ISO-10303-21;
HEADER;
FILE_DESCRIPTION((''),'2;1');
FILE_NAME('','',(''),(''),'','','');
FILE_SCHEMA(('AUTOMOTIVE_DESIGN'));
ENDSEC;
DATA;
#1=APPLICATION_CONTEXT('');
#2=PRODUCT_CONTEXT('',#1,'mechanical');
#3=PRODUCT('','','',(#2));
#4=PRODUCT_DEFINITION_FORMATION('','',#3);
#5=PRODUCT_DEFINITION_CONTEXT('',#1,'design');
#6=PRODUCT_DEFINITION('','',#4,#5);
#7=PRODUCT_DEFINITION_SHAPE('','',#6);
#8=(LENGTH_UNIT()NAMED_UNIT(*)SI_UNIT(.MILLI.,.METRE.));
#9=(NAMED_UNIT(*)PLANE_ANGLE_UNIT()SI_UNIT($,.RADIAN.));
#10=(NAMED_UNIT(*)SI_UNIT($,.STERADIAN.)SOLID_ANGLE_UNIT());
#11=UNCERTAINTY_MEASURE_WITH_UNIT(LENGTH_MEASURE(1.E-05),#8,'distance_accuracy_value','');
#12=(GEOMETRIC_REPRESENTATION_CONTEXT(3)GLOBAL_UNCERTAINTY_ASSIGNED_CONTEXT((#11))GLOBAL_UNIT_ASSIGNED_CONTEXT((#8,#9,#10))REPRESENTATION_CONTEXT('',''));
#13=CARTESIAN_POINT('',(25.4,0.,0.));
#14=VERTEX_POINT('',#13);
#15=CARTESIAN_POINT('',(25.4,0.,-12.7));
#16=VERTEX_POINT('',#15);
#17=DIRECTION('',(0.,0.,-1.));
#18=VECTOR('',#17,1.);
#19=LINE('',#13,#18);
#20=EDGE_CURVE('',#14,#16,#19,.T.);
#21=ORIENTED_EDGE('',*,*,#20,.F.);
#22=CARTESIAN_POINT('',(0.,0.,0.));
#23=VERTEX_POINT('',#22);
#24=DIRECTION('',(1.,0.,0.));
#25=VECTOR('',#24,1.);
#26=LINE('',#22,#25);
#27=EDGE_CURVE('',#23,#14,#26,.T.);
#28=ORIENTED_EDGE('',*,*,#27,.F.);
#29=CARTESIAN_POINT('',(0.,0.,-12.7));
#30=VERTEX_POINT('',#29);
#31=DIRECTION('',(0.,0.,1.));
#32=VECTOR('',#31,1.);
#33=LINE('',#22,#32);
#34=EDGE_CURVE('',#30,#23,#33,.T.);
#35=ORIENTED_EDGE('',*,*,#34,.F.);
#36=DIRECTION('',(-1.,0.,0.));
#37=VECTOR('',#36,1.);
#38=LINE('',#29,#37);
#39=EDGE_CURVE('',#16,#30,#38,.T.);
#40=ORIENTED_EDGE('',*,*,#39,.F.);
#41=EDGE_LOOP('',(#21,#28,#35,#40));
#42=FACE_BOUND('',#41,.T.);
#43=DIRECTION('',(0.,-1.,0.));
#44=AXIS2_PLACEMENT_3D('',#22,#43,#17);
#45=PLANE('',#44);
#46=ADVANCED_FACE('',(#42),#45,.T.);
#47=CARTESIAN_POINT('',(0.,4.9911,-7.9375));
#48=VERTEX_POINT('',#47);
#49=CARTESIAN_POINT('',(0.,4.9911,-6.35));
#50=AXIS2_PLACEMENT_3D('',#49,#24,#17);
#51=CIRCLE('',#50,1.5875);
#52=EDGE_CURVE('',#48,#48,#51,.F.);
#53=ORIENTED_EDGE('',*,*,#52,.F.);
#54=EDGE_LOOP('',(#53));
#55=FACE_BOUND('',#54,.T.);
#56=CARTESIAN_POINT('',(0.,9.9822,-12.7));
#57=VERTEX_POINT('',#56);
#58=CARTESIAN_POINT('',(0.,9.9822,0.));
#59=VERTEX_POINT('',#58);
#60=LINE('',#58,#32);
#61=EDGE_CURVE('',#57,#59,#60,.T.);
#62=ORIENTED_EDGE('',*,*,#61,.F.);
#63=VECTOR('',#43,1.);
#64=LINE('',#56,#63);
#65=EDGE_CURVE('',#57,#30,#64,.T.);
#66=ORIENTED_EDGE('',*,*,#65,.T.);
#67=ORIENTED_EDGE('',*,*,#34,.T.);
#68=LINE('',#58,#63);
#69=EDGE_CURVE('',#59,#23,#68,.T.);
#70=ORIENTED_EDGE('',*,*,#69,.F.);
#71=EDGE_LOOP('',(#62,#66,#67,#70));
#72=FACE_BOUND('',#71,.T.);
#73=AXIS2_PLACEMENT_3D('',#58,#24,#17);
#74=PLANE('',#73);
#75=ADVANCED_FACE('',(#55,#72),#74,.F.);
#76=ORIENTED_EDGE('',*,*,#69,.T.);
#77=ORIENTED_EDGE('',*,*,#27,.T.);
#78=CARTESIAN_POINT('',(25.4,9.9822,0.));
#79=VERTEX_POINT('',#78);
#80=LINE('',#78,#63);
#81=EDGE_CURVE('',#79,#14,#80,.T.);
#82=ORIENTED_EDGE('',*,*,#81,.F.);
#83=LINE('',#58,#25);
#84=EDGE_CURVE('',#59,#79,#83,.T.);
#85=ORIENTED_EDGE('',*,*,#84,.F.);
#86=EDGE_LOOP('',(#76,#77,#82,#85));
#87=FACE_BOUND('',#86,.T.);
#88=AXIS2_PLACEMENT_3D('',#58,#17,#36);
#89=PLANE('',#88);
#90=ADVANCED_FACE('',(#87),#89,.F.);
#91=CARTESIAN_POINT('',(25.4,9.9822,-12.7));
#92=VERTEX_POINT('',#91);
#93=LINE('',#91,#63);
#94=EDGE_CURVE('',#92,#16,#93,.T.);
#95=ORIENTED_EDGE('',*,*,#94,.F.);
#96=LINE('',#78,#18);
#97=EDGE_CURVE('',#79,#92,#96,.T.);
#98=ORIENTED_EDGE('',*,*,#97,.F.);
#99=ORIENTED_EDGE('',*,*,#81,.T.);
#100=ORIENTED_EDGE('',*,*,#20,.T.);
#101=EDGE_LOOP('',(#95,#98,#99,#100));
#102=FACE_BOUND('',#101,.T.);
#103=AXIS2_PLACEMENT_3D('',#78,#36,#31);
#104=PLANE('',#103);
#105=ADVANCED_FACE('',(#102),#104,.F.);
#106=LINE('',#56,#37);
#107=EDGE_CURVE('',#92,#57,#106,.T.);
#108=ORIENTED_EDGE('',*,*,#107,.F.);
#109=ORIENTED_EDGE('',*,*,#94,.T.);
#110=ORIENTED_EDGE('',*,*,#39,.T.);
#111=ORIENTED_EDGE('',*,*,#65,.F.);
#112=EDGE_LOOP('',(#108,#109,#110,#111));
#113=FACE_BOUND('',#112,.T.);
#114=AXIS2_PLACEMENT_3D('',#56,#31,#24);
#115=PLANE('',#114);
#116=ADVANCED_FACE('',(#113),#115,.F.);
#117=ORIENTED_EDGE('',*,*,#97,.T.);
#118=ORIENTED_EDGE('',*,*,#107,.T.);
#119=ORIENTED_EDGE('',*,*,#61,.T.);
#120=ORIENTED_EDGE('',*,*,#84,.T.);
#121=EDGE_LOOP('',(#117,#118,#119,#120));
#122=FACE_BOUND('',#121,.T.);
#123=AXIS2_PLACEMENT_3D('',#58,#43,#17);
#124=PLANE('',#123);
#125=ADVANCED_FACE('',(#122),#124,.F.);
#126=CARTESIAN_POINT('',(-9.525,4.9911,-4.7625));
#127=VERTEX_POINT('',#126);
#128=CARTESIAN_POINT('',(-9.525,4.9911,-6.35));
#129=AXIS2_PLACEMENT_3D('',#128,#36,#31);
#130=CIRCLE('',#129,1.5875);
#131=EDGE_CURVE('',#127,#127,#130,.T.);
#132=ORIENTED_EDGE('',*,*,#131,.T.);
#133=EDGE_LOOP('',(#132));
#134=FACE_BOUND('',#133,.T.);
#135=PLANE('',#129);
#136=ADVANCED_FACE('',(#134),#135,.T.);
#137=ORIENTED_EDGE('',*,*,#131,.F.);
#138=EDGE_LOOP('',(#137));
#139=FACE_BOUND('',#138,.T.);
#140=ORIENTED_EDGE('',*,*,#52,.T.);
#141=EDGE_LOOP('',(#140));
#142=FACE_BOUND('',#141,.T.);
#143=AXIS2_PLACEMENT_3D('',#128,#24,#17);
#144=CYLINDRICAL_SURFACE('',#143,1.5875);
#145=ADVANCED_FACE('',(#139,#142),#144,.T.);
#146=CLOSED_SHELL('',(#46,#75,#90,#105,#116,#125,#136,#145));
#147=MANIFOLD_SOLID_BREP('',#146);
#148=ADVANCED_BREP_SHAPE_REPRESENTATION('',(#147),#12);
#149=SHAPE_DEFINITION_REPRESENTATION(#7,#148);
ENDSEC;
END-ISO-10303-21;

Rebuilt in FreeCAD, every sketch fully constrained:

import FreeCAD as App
import Part
import Sketcher
from FreeCAD import Vector
Q = App.Units.Quantity


def add_polygon(sketch, points):
    """Adds a closed chain of lines whose ends are joined by coincident constraints."""
    first, n = sketch.GeometryCount, len(points)
    for a, b in zip(points, points[1:] + points[:1]):
        sketch.addGeometry(Part.LineSegment(App.Vector(*a, 0), App.Vector(*b, 0)), False)
    for i in range(n):
        sketch.addConstraint(Sketcher.Constraint("Coincident", first + i, 2, first + (i + 1) % n, 1))

doc = App.newDocument("Part")
body = doc.addObject("PartDesign::Body", "Body")

# Sketch on XZ plane
sketch1 = body.newObject("Sketcher::SketchObject", "Sketch")
sketch1.AttachmentSupport = (doc.getObject("XZ_Plane"), [""])
sketch1.MapMode = "FlatFace"
add_polygon(sketch1, [(0, -13), (0, 0), (25, 0), (25, -13)])  # lines 0-3
sketch1.addConstraint(Sketcher.Constraint("Vertical", 0))
sketch1.addConstraint(Sketcher.Constraint("Horizontal", 1))
sketch1.addConstraint(Sketcher.Constraint("Vertical", 2))
sketch1.addConstraint(Sketcher.Constraint("Horizontal", 3))
sketch1.addConstraint(Sketcher.Constraint("Coincident", 0, 2, -1, 1))
sketch1.addConstraint(Sketcher.Constraint("DistanceX", 1, 1, 1, 2, Q("1 in")))
sketch1.addConstraint(Sketcher.Constraint("DistanceY", 0, 1, 0, 2, Q("0.5 in")))
pad1 = body.newObject("PartDesign::Pad", "Pad")
pad1.Profile = sketch1
pad1.Length = Q("0.393 in")
pad1.Reversed = True

# Sketch on YZ plane
sketch2 = body.newObject("Sketcher::SketchObject", "Sketch001")
sketch2.AttachmentSupport = (doc.getObject("YZ_Plane"), [""])
sketch2.MapMode = "FlatFace"
sketch2.addGeometry(Part.Circle(Vector(5, -6.3, 0), Vector(0, 0, 1), 1.6), False)
sketch2.addConstraint(Sketcher.Constraint("Diameter", 0, Q("0.125 in")))
sketch2.addConstraint(Sketcher.Constraint("DistanceY", 0, 3, -1, 1, Q("0.25 in")))
sketch2.addConstraint(Sketcher.Constraint("DistanceX", -1, 1, 0, 3, Q("0.1965 in")))
pad2 = body.newObject("PartDesign::Pad", "Pad001")
pad2.Profile = sketch2
pad2.Length = Q("0.375 in")
pad2.Reversed = True

doc.recompute()
